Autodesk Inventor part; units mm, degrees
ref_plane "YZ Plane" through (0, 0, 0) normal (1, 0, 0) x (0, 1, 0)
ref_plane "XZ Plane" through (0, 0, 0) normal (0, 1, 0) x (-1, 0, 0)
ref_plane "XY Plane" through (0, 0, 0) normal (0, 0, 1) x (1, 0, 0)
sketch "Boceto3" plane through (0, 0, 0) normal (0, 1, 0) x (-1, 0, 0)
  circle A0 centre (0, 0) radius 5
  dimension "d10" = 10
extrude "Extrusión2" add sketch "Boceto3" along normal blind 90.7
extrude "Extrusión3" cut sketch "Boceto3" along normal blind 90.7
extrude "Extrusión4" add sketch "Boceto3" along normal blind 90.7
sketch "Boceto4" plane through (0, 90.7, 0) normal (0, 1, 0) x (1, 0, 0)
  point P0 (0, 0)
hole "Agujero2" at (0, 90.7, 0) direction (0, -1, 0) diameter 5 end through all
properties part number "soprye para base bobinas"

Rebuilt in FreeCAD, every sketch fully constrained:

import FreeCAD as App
import Part
import Sketcher

V = App.Vector
Q = App.Units.Quantity

doc = App.newDocument("Part")
body = doc.addObject("PartDesign::Body", "Body")

# Sketch on XZ plane
sketch1 = body.newObject("Sketcher::SketchObject", "Sketch")
sketch1.AttachmentSupport = (doc.getObject("XZ_Plane"), [""])
sketch1.MapMode = "FlatFace"
sketch1.addGeometry(Part.Circle(V(0, 0, 0), V(0, 0, 1), 5), False)
sketch1.addConstraint(Sketcher.Constraint("Coincident", 0, 3, -1, 1))
sketch1.addConstraint(Sketcher.Constraint("Diameter", 0, Q("10 mm")))
pad1 = body.newObject("PartDesign::Pad", "Pad")
pad1.Profile = sketch1
pad1.Length = 90.7
pad1.Reversed = True

# Sketch on XZ plane
sketch2 = body.newObject("Sketcher::SketchObject", "Sketch001")
sketch2.AttachmentSupport = (doc.getObject("XZ_Plane"), [""])
sketch2.MapMode = "FlatFace"
sketch2.addGeometry(Part.Circle(V(0, 0, 0), V(0, 0, 1), 5), False)
sketch2.addConstraint(Sketcher.Constraint("Coincident", 0, 3, -1, 1))
sketch2.addConstraint(Sketcher.Constraint("Diameter", 0, Q("10 mm")))
pocket1 = body.newObject("PartDesign::Pocket", "Pocket")
pocket1.Profile = sketch2
pocket1.Length = 90.7

# Sketch on XZ plane
sketch3 = body.newObject("Sketcher::SketchObject", "Sketch002")
sketch3.AttachmentSupport = (doc.getObject("XZ_Plane"), [""])
sketch3.MapMode = "FlatFace"
sketch3.addGeometry(Part.Circle(V(0, 0, 0), V(0, 0, 1), 5), False)
sketch3.addConstraint(Sketcher.Constraint("Coincident", 0, 3, -1, 1))
sketch3.addConstraint(Sketcher.Constraint("Diameter", 0, Q("10 mm")))
pad2 = body.newObject("PartDesign::Pad", "Pad001")
pad2.Profile = sketch3
pad2.Length = 90.7
pad2.Reversed = True

# Sketch on XZ plane
sketch4 = body.newObject("Sketcher::SketchObject", "Sketch003")
sketch4.AttachmentSupport = (doc.getObject("XZ_Plane"), [""])
sketch4.MapMode = "FlatFace"
sketch4.AttachmentOffset = App.Placement(V(0, 0, -90.7), App.Rotation())
sketch4.addGeometry(Part.Circle(V(0, 0, 0), V(0, 0, 1), 2.5), False)
sketch4.addConstraint(Sketcher.Constraint("Coincident", 0, 3, -1, 1))
sketch4.addConstraint(Sketcher.Constraint("Diameter", 0, Q("5 mm")))
doc.recompute()
hole = body.newObject("PartDesign::Hole", "Hole")
hole.Profile = sketch4
hole.ThreadType = "None"
hole.Diameter = 5
hole.DepthType = "ThroughAll"
hole.Reversed = True

doc.recompute()
